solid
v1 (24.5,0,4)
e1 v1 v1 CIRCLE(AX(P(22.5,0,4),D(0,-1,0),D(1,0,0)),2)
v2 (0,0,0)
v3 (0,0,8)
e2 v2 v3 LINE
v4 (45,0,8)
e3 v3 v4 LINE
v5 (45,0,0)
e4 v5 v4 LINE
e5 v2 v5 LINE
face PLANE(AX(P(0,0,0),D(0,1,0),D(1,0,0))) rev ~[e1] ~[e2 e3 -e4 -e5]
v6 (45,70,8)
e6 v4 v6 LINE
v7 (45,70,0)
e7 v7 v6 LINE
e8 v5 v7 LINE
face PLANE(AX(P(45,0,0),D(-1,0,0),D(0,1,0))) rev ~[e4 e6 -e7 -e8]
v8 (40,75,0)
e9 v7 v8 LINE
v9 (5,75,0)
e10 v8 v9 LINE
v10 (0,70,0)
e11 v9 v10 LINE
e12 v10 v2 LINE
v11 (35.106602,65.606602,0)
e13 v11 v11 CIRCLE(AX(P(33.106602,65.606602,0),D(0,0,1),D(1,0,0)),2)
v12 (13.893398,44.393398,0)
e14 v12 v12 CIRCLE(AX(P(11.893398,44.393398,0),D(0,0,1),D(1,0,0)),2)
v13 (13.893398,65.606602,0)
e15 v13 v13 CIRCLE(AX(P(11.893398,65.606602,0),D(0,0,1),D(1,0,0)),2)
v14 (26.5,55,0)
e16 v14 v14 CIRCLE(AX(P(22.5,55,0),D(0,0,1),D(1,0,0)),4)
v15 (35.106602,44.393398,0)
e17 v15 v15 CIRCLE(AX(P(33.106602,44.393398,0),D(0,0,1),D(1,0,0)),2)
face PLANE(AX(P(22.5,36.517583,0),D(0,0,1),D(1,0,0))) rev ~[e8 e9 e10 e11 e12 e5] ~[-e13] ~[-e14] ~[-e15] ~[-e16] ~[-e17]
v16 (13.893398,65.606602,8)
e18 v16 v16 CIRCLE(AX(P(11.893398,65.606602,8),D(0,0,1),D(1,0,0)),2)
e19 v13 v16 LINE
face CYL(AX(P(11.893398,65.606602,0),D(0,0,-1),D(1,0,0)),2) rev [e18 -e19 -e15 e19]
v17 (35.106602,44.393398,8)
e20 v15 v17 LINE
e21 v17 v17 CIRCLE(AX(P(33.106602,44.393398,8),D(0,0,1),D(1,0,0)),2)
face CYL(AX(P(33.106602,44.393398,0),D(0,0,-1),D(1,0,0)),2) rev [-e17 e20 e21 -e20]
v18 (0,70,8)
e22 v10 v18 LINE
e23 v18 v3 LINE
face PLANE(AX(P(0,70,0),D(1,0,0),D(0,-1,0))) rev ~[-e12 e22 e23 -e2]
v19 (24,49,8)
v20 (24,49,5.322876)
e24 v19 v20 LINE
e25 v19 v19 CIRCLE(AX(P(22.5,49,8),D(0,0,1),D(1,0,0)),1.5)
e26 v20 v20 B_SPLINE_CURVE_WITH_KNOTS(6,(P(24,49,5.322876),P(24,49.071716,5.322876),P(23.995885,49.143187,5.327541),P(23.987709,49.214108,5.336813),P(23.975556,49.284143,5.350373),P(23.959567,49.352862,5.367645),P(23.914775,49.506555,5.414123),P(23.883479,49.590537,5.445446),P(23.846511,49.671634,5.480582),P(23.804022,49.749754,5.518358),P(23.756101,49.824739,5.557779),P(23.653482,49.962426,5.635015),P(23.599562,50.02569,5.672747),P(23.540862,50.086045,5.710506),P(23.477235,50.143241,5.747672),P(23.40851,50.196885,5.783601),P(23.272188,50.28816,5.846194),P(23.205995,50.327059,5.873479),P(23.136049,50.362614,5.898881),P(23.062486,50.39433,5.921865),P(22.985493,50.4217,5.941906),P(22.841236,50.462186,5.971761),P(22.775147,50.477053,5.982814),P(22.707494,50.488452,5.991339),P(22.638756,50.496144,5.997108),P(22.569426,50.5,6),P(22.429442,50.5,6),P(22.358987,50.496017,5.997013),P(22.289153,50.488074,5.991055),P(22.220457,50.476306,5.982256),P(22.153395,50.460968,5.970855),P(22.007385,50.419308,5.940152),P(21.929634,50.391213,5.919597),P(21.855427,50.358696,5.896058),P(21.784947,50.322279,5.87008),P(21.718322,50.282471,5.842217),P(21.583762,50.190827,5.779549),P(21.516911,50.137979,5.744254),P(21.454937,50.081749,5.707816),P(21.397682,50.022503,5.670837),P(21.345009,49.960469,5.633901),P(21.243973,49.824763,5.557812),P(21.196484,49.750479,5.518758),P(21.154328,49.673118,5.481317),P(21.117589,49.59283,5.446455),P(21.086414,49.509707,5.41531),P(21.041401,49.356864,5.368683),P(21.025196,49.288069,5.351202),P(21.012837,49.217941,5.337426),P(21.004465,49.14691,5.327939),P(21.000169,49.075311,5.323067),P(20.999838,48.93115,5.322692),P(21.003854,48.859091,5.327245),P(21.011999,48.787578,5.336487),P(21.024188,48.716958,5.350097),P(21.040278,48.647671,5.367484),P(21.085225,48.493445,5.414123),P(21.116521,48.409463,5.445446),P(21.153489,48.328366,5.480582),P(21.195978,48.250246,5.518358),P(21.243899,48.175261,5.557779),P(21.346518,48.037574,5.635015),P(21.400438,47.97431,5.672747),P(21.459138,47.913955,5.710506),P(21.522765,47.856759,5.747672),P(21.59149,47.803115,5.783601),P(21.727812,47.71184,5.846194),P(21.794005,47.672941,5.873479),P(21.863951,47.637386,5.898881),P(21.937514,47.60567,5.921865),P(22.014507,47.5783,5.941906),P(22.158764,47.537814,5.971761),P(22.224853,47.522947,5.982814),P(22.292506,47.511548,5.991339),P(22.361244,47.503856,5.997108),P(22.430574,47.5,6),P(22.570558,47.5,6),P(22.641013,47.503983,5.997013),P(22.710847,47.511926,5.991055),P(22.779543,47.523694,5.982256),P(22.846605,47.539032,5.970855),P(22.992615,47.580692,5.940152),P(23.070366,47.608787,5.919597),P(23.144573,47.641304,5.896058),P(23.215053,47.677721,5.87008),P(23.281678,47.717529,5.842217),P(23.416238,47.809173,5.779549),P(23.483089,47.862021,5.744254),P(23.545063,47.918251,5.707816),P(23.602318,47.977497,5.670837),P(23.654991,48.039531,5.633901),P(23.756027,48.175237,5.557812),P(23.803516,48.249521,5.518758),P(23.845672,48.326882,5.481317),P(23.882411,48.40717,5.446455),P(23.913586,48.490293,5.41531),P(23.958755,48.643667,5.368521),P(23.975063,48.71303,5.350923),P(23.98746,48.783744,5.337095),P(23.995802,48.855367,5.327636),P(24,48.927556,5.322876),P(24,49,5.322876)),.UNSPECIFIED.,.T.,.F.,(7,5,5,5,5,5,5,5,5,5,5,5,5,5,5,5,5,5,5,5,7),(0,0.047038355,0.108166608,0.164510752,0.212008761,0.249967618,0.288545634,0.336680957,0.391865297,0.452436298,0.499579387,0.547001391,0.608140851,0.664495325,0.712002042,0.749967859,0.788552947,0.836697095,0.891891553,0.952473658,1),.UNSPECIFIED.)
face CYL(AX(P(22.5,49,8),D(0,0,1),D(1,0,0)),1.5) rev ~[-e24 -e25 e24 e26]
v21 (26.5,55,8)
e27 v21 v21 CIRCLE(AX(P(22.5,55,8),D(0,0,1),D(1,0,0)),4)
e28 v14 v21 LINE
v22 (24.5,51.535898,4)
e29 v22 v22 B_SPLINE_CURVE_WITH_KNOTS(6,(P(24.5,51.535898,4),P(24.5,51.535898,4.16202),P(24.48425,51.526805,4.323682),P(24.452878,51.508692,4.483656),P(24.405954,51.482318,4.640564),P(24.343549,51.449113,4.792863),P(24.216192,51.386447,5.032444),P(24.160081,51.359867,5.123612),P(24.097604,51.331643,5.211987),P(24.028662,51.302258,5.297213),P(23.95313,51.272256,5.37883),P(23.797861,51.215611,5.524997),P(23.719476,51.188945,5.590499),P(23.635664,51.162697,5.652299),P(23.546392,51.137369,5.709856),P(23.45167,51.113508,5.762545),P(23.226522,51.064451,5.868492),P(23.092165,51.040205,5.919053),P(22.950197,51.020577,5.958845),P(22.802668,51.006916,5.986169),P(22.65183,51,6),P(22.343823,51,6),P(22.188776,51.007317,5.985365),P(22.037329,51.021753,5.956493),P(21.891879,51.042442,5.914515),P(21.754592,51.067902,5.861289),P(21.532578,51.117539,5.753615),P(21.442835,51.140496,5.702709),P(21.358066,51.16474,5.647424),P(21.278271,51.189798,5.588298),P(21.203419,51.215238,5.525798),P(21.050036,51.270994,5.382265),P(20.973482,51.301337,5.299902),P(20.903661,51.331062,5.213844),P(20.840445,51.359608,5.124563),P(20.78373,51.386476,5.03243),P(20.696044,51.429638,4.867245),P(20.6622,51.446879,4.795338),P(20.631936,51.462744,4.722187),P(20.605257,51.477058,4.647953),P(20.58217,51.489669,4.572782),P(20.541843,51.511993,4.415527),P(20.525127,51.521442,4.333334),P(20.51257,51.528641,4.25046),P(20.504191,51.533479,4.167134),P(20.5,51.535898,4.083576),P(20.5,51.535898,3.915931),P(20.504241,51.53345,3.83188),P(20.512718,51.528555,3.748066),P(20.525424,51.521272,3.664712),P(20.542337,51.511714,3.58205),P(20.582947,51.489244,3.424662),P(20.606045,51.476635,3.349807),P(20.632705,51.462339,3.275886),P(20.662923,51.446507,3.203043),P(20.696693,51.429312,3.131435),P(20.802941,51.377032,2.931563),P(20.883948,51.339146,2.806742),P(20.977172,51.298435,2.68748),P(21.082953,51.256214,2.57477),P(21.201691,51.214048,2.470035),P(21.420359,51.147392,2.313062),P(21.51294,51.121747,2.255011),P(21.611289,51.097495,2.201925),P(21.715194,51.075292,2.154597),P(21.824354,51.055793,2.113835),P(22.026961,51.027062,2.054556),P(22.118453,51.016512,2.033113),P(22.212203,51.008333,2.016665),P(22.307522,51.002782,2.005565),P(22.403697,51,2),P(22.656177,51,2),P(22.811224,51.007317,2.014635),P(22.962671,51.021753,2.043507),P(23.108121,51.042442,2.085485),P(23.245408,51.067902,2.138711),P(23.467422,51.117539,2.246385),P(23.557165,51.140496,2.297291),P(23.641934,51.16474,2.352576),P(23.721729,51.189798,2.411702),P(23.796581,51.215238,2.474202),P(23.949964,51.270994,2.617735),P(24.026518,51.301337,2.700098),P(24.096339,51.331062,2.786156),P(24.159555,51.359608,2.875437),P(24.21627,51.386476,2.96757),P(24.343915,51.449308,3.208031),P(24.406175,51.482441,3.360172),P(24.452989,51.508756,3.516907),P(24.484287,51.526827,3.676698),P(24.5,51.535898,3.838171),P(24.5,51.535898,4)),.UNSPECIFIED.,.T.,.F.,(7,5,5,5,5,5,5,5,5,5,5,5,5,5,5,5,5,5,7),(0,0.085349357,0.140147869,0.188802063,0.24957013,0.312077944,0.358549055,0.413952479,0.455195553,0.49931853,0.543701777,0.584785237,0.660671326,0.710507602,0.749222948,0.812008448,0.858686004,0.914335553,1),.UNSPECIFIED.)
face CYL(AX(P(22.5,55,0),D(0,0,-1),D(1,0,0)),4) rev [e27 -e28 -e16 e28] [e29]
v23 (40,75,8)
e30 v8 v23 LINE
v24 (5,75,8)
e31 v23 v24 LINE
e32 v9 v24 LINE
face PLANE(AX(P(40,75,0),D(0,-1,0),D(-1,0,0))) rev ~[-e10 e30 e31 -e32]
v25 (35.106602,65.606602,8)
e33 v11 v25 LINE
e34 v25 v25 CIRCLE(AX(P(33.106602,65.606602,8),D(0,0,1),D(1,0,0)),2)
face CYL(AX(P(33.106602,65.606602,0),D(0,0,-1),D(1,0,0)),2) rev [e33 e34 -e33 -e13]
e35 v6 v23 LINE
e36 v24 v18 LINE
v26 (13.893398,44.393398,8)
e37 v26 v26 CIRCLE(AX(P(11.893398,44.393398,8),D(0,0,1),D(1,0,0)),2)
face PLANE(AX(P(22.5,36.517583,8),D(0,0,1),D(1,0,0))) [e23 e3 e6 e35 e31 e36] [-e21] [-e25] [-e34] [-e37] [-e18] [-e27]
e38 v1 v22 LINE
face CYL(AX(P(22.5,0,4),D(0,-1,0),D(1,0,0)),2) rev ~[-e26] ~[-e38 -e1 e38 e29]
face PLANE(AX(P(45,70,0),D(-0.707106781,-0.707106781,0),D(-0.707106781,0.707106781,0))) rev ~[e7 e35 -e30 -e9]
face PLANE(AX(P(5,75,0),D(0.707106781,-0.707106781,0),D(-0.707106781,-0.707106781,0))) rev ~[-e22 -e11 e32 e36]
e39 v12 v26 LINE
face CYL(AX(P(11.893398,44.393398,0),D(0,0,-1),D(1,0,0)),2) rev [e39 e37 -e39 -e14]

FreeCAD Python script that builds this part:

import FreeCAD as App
import Part
import Sketcher
from FreeCAD import Vector


def add_polygon(sketch, points):
    """Adds a closed chain of lines whose ends are joined by coincident constraints."""
    first, n = sketch.GeometryCount, len(points)
    for a, b in zip(points, points[1:] + points[:1]):
        sketch.addGeometry(Part.LineSegment(App.Vector(*a, 0), App.Vector(*b, 0)), False)
    for i in range(n):
        sketch.addConstraint(Sketcher.Constraint("Coincident", first + i, 2, first + (i + 1) % n, 1))

doc = App.newDocument("Part")
body = doc.addObject("PartDesign::Body", "Body")

# Sketch on XY plane
sketch1 = doc.addObject("Sketcher::SketchObject", "Sketch")
body.addObject(sketch1)
sketch1.AttachmentSupport = (doc.XY_Plane, [""])
sketch1.MapMode = "FlatFace"
add_polygon(sketch1, [(0, 70), (0, 0), (45, 0), (45, 70), (40, 75), (5, 75)])  # lines 0-5
sketch1.addGeometry(Part.Circle(Vector(11.9, 44.4, 0), Vector(0, 0, 1), 2), False)  # 6
sketch1.addGeometry(Part.Circle(Vector(33.1, 44.4, 0), Vector(0, 0, 1), 2), False)  # 7
sketch1.addGeometry(Part.Circle(Vector(22.5, 55, 0), Vector(0, 0, 1), 4), False)  # 8
sketch1.addGeometry(Part.Circle(Vector(11.9, 65.6, 0), Vector(0, 0, 1), 2), False)  # 9
sketch1.addGeometry(Part.Circle(Vector(33.1, 65.6, 0), Vector(0, 0, 1), 2), False)  # 10
sketch1.addConstraint([
    Sketcher.Constraint("Vertical", 0),
    Sketcher.Constraint("Horizontal", 1),
    Sketcher.Constraint("Vertical", 2),
    Sketcher.Constraint("Horizontal", 4),
    Sketcher.Constraint("Coincident", 0, 2, -1, 1),
    Sketcher.Constraint("Equal", 6, 7),
    Sketcher.Constraint("Equal", 7, 9),
    Sketcher.Constraint("Equal", 9, 10),
    Sketcher.Constraint("Perpendicular", 3, 5),
    Sketcher.Constraint("Horizontal", 6, 3, 7, 3),
    Sketcher.Constraint("Horizontal", 9, 3, 10, 3),
    Sketcher.Constraint("Horizontal", 2, 2, 5, 2),
    Sketcher.Constraint("Vertical", 6, 3, 9, 3),
    Sketcher.Constraint("Vertical", 7, 3, 10, 3),
    Sketcher.Constraint("Equal", 3, 5),
    Sketcher.Constraint("Diameter", 6, 4.0),
    Sketcher.Constraint("Diameter", 8, 8.0),
    Sketcher.Constraint("DistanceX", 1, 1, 1, 2, 45.0),
    Sketcher.Constraint("DistanceX", 4, 2, 4, 1, 35.0),
    Sketcher.Constraint("DistanceY", 0, 2, 0, 1, 70.0),
    Sketcher.Constraint("DistanceY", -1, 1, 8, 3, 55.0),
    Sketcher.Constraint("DistanceX", -1, 1, 8, 3, 22.5),
    Sketcher.Constraint("DistanceY", -1, 1, 9, 3, 65.606602),
    Sketcher.Constraint("DistanceX", -1, 1, 6, 3, 11.893398),
    Sketcher.Constraint("DistanceY", -1, 1, 6, 3, 44.393398),
    Sketcher.Constraint("DistanceX", -1, 1, 7, 3, 33.106602),
])
pad1 = doc.addObject("PartDesign::Pad", "Pad")
body.addObject(pad1)
pad1.Profile = sketch1
pad1.Length = 8

# Sketch on XZ plane
sketch2 = doc.addObject("Sketcher::SketchObject", "Sketch001")
body.addObject(sketch2)
sketch2.AttachmentSupport = (doc.XZ_Plane, [""])
sketch2.MapMode = "FlatFace"
sketch2.addGeometry(Part.Circle(Vector(22.5, 4, 0), Vector(0, 0, 1), 2), False)
sketch2.addConstraint([
    Sketcher.Constraint("Diameter", 0, 4.0),
    Sketcher.Constraint("DistanceY", -1, 1, 0, 3, 4.0),
    Sketcher.Constraint("DistanceX", -1, 1, 0, 3, 22.5),
])
pocket1 = doc.addObject("PartDesign::Pocket", "Pocket")
body.addObject(pocket1)
pocket1.Profile = sketch2
pocket1.Length = 53

# Sketch on XY plane
sketch3 = doc.addObject("Sketcher::SketchObject", "Sketch002")
body.addObject(sketch3)
sketch3.AttachmentSupport = (doc.XY_Plane, [""])
sketch3.MapMode = "FlatFace"
sketch3.AttachmentOffset = App.Placement(Vector(0, 0, 8), App.Rotation())
sketch3.addGeometry(Part.Circle(Vector(22.5, 49, 0), Vector(0, 0, 1), 1.5), False)
sketch3.addConstraint([
    Sketcher.Constraint("Diameter", 0, 3.0),
    Sketcher.Constraint("DistanceY", -1, 1, 0, 3, 49.0),
    Sketcher.Constraint("DistanceX", -1, 1, 0, 3, 22.5),
])
pocket2 = doc.addObject("PartDesign::Pocket", "Pocket001")
body.addObject(pocket2)
pocket2.Profile = sketch3
pocket2.Length = 3

doc.recompute()
